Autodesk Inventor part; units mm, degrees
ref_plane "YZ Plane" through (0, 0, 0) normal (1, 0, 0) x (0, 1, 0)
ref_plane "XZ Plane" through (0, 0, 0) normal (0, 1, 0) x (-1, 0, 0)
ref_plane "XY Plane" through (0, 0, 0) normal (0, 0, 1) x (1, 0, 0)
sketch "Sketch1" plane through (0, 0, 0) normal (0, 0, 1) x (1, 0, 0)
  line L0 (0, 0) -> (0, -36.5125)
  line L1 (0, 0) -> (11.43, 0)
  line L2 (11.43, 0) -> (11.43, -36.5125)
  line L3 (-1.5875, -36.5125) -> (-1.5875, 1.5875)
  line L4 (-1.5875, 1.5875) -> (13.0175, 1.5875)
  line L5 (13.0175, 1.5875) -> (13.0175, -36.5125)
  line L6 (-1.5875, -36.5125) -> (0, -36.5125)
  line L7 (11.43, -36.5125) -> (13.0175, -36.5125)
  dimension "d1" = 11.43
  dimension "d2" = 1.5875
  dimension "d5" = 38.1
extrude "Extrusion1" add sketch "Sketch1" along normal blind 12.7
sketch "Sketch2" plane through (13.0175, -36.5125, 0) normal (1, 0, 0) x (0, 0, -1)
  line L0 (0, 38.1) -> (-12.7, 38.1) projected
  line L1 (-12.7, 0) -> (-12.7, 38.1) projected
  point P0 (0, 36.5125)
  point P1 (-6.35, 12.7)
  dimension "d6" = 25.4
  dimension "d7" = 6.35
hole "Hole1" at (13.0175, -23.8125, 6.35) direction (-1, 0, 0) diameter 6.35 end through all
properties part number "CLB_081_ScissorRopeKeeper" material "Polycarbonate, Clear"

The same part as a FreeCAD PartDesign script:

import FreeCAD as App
import Part
import Sketcher

V = App.Vector
Q = App.Units.Quantity


def add_polygon(sketch, points):
    """Adds a closed chain of lines whose ends are joined by coincident constraints."""
    first, n = sketch.GeometryCount, len(points)
    for a, b in zip(points, points[1:] + points[:1]):
        sketch.addGeometry(Part.LineSegment(App.Vector(*a, 0), App.Vector(*b, 0)), False)
    for i in range(n):
        sketch.addConstraint(Sketcher.Constraint("Coincident", first + i, 2, first + (i + 1) % n, 1))

doc = App.newDocument("Part")
params = doc.addObject("Spreadsheet::Sheet", "Params")
for row, (alias, value) in enumerate([
    ("sketch1_height", "1.5 in"),
    ("sketch1_width", "0.45 in"),
    ("sketch1_width2", "0.0625 in"),
    ("pad1_length", "0.5 in"),
    ("sketch2_diameter", "0.25 in"),
    ("hole_diameter", "0.25 in"),
], start=1):
    params.set(f"A{row}", alias)
    params.set(f"B{row}", "=" + value)
    params.setAlias(f"B{row}", alias)

body = doc.addObject("PartDesign::Body", "Body")

# Sketch on XY plane
sketch1 = body.newObject("Sketcher::SketchObject", "Sketch")
sketch1.AttachmentSupport = (doc.getObject("XY_Plane"), [""])
sketch1.MapMode = "FlatFace"
add_polygon(sketch1, [(0, -36.5), (0, 0), (11.4, 0), (11.4, -36.5), (13, -36.5), (13, 1.6), (-1.6, 1.6), (-1.6, -36.5)])  # lines 0-7
sketch1.addConstraint([
    Sketcher.Constraint("Vertical", 0),
    Sketcher.Constraint("Horizontal", 1),
    Sketcher.Constraint("Vertical", 2),
    Sketcher.Constraint("Horizontal", 3),
    Sketcher.Constraint("Vertical", 4),
    Sketcher.Constraint("Horizontal", 5),
    Sketcher.Constraint("Vertical", 6),
    Sketcher.Constraint("Horizontal", 7),
    Sketcher.Constraint("Coincident", 0, 2, -1, 1),
    Sketcher.Constraint("Horizontal", 3, 2, 6, 2),
    Sketcher.Constraint("Equal", 3, 7),
    Sketcher.Constraint("DistanceY", 4, 1, 4, 2, Q("1.5 in")),
    Sketcher.Constraint("DistanceX", 1, 1, 1, 2, Q("0.45 in")),
    Sketcher.Constraint("DistanceX", 3, 1, 3, 2, Q("0.0625 in")),
    Sketcher.Constraint("DistanceY", -1, 1, 4, 2, Q("0.0625 in")),
])
sketch1.setExpression("Constraints[19]", "Params.sketch1_height")
sketch1.setExpression("Constraints[20]", "Params.sketch1_width")
sketch1.setExpression("Constraints[21]", "Params.sketch1_width2")
pad1 = body.newObject("PartDesign::Pad", "Pad")
pad1.Profile = sketch1
pad1.setExpression("Length", "Params.pad1_length")

# Sketch on YZ plane
sketch2 = body.newObject("Sketcher::SketchObject", "Sketch001")
sketch2.AttachmentSupport = (doc.getObject("YZ_Plane"), [""])
sketch2.MapMode = "FlatFace"
sketch2.AttachmentOffset = App.Placement(V(0, 0, 0.5125 * 25.4), App.Rotation())
sketch2.addGeometry(Part.Circle(V(-23.8, 6.3, 0), V(0, 0, 1), 3.2), False)
sketch2.addConstraint([
    Sketcher.Constraint("Diameter", 0, Q("0.25 in")),
    Sketcher.Constraint("DistanceY", -1, 1, 0, 3, Q("0.25 in")),
    Sketcher.Constraint("DistanceX", 0, 3, -1, 1, Q("0.9375 in")),
])
sketch2.setExpression("Constraints[0]", "Params.sketch2_diameter")
doc.recompute()
hole = body.newObject("PartDesign::Hole", "Hole")
hole.Profile = sketch2
hole.ThreadType = "None"
hole.setExpression("Diameter", "Params.hole_diameter")
hole.DepthType = "ThroughAll"

doc.recompute()
